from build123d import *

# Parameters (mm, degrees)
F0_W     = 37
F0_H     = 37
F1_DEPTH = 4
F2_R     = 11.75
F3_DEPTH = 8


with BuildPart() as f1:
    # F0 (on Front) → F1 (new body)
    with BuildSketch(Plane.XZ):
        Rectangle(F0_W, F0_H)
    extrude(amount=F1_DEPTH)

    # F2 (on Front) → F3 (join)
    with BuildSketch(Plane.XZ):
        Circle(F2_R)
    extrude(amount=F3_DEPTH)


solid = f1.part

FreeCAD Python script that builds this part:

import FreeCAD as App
import Part
import Sketcher

V = App.Vector
Q = App.Units.Quantity

doc = App.newDocument("Part")
body = doc.addObject("PartDesign::Body", "Body")

# Sketch on XZ plane
sketch1 = body.newObject("Sketcher::SketchObject", "Sketch")
sketch1.AttachmentSupport = (doc.getObject("XZ_Plane"), [""])
sketch1.MapMode = "FlatFace"
sketch1.addGeometry(Part.LineSegment(V(-18.5, 18.5, 0), V(-18.5, -18.5, 0)), False)
sketch1.addGeometry(Part.LineSegment(V(-18.5, -18.5, 0), V(18.5, -18.5, 0)), False)
sketch1.addGeometry(Part.LineSegment(V(18.5, -18.5, 0), V(18.5, 18.5, 0)), False)
sketch1.addGeometry(Part.LineSegment(V(18.5, 18.5, 0), V(-18.5, 18.5, 0)), False)
sketch1.addConstraint(Sketcher.Constraint("Coincident", 0, 2, 1, 1))
sketch1.addConstraint(Sketcher.Constraint("Coincident", 1, 2, 2, 1))
sketch1.addConstraint(Sketcher.Constraint("Coincident", 2, 2, 3, 1))
sketch1.addConstraint(Sketcher.Constraint("Coincident", 3, 2, 0, 1))
sketch1.addConstraint(Sketcher.Constraint("Vertical", 0))
sketch1.addConstraint(Sketcher.Constraint("Horizontal", 1))
sketch1.addConstraint(Sketcher.Constraint("Vertical", 2))
sketch1.addConstraint(Sketcher.Constraint("Horizontal", 3))
sketch1.addConstraint(Sketcher.Constraint("Symmetric", 0, 2, 2, 2, -1, 1))
sketch1.addConstraint(Sketcher.Constraint("Equal", 3, 0))
sketch1.addConstraint(Sketcher.Constraint("DistanceX", 1, 1, 1, 2, Q("37 mm")))
pad1 = body.newObject("PartDesign::Pad", "Pad")
pad1.Profile = sketch1
pad1.Length = 4

# Sketch on XZ plane
sketch2 = body.newObject("Sketcher::SketchObject", "Sketch001")
sketch2.AttachmentSupport = (doc.getObject("XZ_Plane"), [""])
sketch2.MapMode = "FlatFace"
sketch2.addGeometry(Part.Circle(V(0, 0, 0), V(0, 0, 1), 11.75), False)
sketch2.addConstraint(Sketcher.Constraint("Coincident", 0, 3, -1, 1))
sketch2.addConstraint(Sketcher.Constraint("Diameter", 0, Q("23.5 mm")))
pad2 = body.newObject("PartDesign::Pad", "Pad001")
pad2.Profile = sketch2
pad2.Length = 8

doc.recompute()
